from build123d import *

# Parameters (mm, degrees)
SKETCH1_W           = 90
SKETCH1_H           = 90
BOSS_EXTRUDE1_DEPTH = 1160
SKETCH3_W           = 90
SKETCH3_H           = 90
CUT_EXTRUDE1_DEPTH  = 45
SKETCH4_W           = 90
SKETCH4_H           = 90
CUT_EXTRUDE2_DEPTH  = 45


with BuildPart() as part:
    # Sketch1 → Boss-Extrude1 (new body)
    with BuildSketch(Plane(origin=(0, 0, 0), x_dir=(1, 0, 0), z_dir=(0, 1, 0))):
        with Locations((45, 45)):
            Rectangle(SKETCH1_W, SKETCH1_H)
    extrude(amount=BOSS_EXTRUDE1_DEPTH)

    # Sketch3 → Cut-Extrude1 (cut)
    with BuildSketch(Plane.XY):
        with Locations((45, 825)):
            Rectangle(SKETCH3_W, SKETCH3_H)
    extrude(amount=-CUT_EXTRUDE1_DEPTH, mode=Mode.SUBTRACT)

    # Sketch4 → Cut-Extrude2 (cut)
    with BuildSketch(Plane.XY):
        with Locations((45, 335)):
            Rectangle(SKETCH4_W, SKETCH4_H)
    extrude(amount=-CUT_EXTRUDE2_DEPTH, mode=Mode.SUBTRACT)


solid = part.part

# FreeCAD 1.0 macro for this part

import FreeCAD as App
import Part
import Sketcher

V = App.Vector


def add_polygon(sketch, points):
    """Adds a closed chain of lines whose ends are joined by coincident constraints."""
    first, n = sketch.GeometryCount, len(points)
    for a, b in zip(points, points[1:] + points[:1]):
        sketch.addGeometry(Part.LineSegment(App.Vector(*a, 0), App.Vector(*b, 0)), False)
    for i in range(n):
        sketch.addConstraint(Sketcher.Constraint("Coincident", first + i, 2, first + (i + 1) % n, 1))

doc = App.newDocument("Part")
body = doc.addObject("PartDesign::Body", "Body")

# Sketch on XZ plane
sketch1 = doc.addObject("Sketcher::SketchObject", "Sketch")
body.addObject(sketch1)
sketch1.AttachmentSupport = (doc.XZ_Plane, [""])
sketch1.MapMode = "FlatFace"
add_polygon(sketch1, [(0, -90), (0, 0), (90, 0), (90, -90)])  # lines 0-3
sketch1.addConstraint([
    Sketcher.Constraint("Vertical", 0),
    Sketcher.Constraint("Horizontal", 1),
    Sketcher.Constraint("Vertical", 2),
    Sketcher.Constraint("Horizontal", 3),
    Sketcher.Constraint("Coincident", 0, 2, -1, 1),
    Sketcher.Constraint("Equal", 3, 0),
    Sketcher.Constraint("DistanceX", 1, 1, 1, 2, 90.0),
])
pad1 = doc.addObject("PartDesign::Pad", "Pad")
body.addObject(pad1)
pad1.Profile = sketch1
pad1.Length = 1160
pad1.Reversed = True

# Sketch on XY plane
sketch2 = doc.addObject("Sketcher::SketchObject", "Sketch001")
body.addObject(sketch2)
sketch2.AttachmentSupport = (doc.XY_Plane, [""])
sketch2.MapMode = "FlatFace"
add_polygon(sketch2, [(0, 870), (0, 780), (90, 780), (90, 870)])  # lines 0-3
sketch2.addConstraint([
    Sketcher.Constraint("Vertical", 0),
    Sketcher.Constraint("Horizontal", 1),
    Sketcher.Constraint("Vertical", 2),
    Sketcher.Constraint("Horizontal", 3),
    Sketcher.Constraint("PointOnObject", 0, 2, -2),
    Sketcher.Constraint("Equal", 3, 0),
    Sketcher.Constraint("DistanceX", 1, 1, 1, 2, 90.0),
    Sketcher.Constraint("DistanceY", -1, 1, 0, 2, 780.0),
])
pocket1 = doc.addObject("PartDesign::Pocket", "Pocket")
body.addObject(pocket1)
pocket1.Profile = sketch2
pocket1.Length = 45

# Sketch on XY plane
sketch3 = doc.addObject("Sketcher::SketchObject", "Sketch002")
body.addObject(sketch3)
sketch3.AttachmentSupport = (doc.XY_Plane, [""])
sketch3.MapMode = "FlatFace"
add_polygon(sketch3, [(0, 380), (0, 290), (90, 290), (90, 380)])  # lines 0-3
sketch3.addConstraint([
    Sketcher.Constraint("Vertical", 0),
    Sketcher.Constraint("Horizontal", 1),
    Sketcher.Constraint("Vertical", 2),
    Sketcher.Constraint("Horizontal", 3),
    Sketcher.Constraint("PointOnObject", 0, 2, -2),
    Sketcher.Constraint("Equal", 3, 0),
    Sketcher.Constraint("DistanceX", 1, 1, 1, 2, 90.0),
    Sketcher.Constraint("DistanceY", -1, 1, 0, 2, 290.0),
])
pocket2 = doc.addObject("PartDesign::Pocket", "Pocket001")
body.addObject(pocket2)
pocket2.Profile = sketch3
pocket2.Length = 45

doc.recompute()
